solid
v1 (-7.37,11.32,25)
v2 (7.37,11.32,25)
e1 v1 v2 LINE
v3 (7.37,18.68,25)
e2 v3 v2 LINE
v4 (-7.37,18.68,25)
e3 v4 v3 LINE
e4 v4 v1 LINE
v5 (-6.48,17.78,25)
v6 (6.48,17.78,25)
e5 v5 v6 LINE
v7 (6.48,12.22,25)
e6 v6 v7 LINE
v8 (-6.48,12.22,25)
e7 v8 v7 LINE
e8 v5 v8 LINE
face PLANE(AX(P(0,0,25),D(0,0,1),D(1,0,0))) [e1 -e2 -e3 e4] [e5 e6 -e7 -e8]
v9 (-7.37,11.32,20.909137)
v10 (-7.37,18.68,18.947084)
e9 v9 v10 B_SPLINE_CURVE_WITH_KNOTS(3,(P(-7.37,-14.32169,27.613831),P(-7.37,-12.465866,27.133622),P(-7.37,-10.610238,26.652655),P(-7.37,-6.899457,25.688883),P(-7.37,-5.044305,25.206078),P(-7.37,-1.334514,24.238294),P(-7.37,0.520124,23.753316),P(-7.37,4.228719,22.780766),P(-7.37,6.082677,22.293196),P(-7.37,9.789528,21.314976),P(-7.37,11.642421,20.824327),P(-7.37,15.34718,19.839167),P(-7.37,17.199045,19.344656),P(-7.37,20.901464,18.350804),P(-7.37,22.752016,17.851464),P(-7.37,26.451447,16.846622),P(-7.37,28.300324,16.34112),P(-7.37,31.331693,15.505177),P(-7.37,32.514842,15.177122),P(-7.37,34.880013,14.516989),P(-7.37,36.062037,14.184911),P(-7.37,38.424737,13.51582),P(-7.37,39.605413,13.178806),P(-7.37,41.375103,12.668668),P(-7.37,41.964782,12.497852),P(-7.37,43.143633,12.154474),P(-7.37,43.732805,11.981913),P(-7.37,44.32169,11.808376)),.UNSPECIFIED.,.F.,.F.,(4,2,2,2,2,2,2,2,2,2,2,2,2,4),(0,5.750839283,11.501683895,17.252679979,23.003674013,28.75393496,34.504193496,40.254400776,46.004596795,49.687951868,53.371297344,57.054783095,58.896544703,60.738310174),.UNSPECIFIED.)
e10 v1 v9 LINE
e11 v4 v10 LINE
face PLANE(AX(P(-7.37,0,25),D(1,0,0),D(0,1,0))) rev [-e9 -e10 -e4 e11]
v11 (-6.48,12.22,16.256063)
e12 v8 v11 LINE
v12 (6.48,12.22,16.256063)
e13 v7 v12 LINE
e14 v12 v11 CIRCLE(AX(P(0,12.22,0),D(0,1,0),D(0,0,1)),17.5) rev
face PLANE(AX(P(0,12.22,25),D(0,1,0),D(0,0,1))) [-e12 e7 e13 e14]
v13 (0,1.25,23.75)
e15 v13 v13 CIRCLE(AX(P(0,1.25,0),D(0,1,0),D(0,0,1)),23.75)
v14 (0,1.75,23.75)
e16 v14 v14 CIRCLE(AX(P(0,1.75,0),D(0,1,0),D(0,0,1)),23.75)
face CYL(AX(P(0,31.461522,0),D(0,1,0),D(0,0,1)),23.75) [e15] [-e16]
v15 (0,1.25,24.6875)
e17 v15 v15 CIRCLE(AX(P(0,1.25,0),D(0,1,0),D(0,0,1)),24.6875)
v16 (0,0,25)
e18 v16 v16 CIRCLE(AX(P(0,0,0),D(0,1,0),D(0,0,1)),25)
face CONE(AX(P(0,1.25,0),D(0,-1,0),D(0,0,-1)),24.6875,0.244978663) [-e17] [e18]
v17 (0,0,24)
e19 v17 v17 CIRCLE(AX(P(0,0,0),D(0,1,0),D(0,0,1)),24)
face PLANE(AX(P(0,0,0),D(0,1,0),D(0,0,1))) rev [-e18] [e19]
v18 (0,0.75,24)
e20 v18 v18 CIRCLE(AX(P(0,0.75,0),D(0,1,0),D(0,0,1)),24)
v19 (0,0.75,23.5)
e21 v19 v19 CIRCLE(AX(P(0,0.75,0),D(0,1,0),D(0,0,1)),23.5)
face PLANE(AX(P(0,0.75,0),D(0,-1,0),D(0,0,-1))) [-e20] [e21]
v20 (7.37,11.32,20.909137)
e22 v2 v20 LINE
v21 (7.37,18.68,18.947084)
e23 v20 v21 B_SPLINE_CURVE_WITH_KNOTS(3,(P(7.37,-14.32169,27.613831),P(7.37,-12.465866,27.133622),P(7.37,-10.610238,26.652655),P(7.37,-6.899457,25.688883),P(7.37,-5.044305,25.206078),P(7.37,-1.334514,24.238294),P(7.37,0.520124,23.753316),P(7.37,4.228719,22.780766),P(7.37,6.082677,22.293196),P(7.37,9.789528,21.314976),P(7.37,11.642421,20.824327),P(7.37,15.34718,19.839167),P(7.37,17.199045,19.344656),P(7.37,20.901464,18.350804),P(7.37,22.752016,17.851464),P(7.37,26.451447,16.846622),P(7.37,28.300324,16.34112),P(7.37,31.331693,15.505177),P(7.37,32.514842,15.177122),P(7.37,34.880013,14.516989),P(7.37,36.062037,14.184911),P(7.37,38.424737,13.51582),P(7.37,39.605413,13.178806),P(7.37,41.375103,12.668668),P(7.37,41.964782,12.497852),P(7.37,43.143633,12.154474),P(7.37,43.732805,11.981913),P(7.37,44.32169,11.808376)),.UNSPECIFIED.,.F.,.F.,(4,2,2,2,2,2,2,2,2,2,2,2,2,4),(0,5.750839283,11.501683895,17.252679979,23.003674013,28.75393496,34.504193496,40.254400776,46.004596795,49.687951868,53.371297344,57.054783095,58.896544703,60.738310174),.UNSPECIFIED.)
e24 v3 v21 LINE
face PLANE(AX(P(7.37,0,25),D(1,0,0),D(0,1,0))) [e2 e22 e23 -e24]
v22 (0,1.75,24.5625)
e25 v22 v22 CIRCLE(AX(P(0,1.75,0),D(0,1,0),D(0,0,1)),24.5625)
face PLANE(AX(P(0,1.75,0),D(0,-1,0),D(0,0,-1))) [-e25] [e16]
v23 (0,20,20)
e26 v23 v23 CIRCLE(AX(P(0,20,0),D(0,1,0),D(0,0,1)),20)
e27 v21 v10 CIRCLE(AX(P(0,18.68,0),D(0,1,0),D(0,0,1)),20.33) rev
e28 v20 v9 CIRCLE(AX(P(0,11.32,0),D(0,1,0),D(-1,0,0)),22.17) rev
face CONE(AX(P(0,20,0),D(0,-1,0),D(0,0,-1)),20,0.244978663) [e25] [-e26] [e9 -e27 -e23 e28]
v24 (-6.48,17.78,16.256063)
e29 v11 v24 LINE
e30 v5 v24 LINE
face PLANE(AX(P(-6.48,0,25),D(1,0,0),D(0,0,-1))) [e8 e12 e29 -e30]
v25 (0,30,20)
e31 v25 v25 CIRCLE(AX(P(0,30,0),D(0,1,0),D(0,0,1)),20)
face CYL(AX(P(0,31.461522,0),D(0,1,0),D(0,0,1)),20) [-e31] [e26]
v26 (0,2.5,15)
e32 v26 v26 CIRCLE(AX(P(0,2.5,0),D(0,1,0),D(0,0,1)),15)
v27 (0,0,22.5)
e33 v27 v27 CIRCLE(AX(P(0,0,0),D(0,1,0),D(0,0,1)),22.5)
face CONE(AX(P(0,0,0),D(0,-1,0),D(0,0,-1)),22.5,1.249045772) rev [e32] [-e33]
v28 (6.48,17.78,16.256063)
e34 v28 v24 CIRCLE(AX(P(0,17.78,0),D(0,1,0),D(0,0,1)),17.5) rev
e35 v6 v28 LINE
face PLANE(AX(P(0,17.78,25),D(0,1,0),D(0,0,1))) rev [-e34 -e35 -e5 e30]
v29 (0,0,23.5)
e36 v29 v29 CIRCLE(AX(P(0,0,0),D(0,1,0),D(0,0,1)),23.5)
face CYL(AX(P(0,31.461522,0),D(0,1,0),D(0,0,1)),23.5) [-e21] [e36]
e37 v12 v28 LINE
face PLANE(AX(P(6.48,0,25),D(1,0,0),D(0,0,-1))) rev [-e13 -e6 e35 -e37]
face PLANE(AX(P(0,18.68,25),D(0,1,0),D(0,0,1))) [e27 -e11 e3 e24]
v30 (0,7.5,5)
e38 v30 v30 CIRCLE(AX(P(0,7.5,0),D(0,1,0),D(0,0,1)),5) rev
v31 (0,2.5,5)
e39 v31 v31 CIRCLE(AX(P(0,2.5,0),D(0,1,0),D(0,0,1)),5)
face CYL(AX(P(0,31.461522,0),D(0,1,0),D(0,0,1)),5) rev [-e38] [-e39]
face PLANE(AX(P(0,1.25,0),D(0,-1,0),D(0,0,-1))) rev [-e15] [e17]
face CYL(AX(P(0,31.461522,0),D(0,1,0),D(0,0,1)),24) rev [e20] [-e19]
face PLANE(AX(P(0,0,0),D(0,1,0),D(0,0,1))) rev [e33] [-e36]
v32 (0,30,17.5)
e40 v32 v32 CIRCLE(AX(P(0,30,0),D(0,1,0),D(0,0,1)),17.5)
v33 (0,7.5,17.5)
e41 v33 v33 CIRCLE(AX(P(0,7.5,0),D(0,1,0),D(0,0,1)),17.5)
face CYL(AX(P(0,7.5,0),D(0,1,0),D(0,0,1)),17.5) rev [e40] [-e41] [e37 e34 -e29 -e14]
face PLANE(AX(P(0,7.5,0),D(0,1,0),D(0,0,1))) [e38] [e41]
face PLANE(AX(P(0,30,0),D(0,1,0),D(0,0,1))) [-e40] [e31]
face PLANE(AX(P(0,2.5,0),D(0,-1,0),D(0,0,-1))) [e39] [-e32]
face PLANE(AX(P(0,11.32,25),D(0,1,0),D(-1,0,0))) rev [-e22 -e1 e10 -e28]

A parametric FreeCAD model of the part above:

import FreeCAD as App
import Part
import Sketcher

V = App.Vector

doc = App.newDocument("Part")
params = doc.addObject("Spreadsheet::Sheet", "Params")
for row, (alias, value) in enumerate([
    ("sketch1_diameter", "50 mm"),
    ("pad1_length", "30 mm"),
    ("sketch2_width", "5 mm"),
    ("sketch2_width2", "10 mm"),
    ("sketch2_height", "30 mm"),
    ("sketch2_width3", "22.5 mm"),
    ("sketch2_width4", "0.5 mm"),
    ("groove_angle", "360 deg"),
    ("sketch3_width", "14.74 mm"),
    ("sketch3_width2", "12.96 mm"),
    ("sketch3_height", "7.36 mm"),
    ("sketch3_height2", "5.56 mm"),
    ("pad2_length", "25 mm"),
    ("sketch4_diameter", "35 mm"),
    ("pocket1_length", "22.5 mm"),
    ("sketch5_width", "12.96 mm"),
    ("sketch5_height", "5.56 mm"),
    ("pocket2_length", "46.5 mm"),
], start=1):
    params.set(f"A{row}", alias)
    params.set(f"B{row}", "=" + value)
    params.setAlias(f"B{row}", alias)

body = doc.addObject("PartDesign::Body", "Body")

# Sketch on XZ plane
sketch1 = body.newObject("Sketcher::SketchObject", "Sketch")
sketch1.AttachmentSupport = (doc.getObject("XZ_Plane"), [""])
sketch1.MapMode = "FlatFace"
sketch1.addGeometry(Part.Circle(V(0, 0, 0), V(0, 0, 1), 25), False)
sketch1.addConstraint([
    Sketcher.Constraint("Coincident", 0, 3, -1, 1),
    Sketcher.Constraint("Diameter", 0, 50.0),
])
sketch1.setExpression("Constraints[1]", "Params.sketch1_diameter")
pad1 = body.newObject("PartDesign::Pad", "Pad")
pad1.Profile = sketch1
pad1.setExpression("Length", "Params.pad1_length")
pad1.Reversed = True

# Sketch on XY plane
sketch2 = body.newObject("Sketcher::SketchObject", "Sketch001")
sketch2.AttachmentSupport = (doc.getObject("XY_Plane"), [""])
sketch2.MapMode = "FlatFace"
sketch2.addGeometry([
    Part.LineSegment(V(-24.5625, 1.75, 0), V(-20, 20, 0)),  # 0
    Part.LineSegment(V(-20, 20, 0), V(-20, 30, 0)),  # 1
    Part.LineSegment(V(-20, 30, 0), V(-25, 30, 0)),  # 2
    Part.LineSegment(V(-25, 30, 0), V(-25, 0, 0)),  # 3
    Part.LineSegment(V(-25, 0, 0), V(-24.6875, 1.25, 0)),  # 4
    Part.LineSegment(V(-24.6875, 1.25, 0), V(-23.75, 1.25, 0)),  # 5
    Part.LineSegment(V(-23.75, 1.25, 0), V(-23.75, 1.75, 0)),  # 6
    Part.LineSegment(V(-23.75, 1.75, 0), V(-24.5625, 1.75, 0)),  # 7
    Part.LineSegment(V(0, 0, 0), V(0, 20, 0)),  # 8
    Part.LineSegment(V(0, 20, 0), V(-5, 20, 0)),  # 9
    Part.LineSegment(V(-5, 20, 0), V(-5, 2.5, 0)),  # 10
    Part.LineSegment(V(-5, 2.5, 0), V(-15, 2.5, 0)),  # 11
    Part.LineSegment(V(-15, 2.5, 0), V(-22.5, 0, 0)),  # 12
    Part.LineSegment(V(-22.5, 0, 0), V(0, 0, 0)),  # 13
    Part.LineSegment(V(-24, 0.75, 0), V(-24, 0, 0)),  # 14
    Part.LineSegment(V(-24, 0, 0), V(-23.5, 0, 0)),  # 15
    Part.LineSegment(V(-23.5, 0, 0), V(-23.5, 0.75, 0)),  # 16
    Part.LineSegment(V(-23.5, 0.75, 0), V(-24, 0.75, 0)),  # 17
], False)
sketch2.addConstraint([
    Sketcher.Constraint("Coincident", 0, 2, 1, 1),
    Sketcher.Constraint("Coincident", 1, 2, 2, 1),
    Sketcher.Constraint("Coincident", 2, 2, 3, 1),
    Sketcher.Constraint("Coincident", 3, 2, 4, 1),
    Sketcher.Constraint("Coincident", 4, 2, 5, 1),
    Sketcher.Constraint("Coincident", 5, 2, 6, 1),
    Sketcher.Constraint("Coincident", 6, 2, 7, 1),
    Sketcher.Constraint("Coincident", 7, 2, 0, 1),
    Sketcher.Constraint("Coincident", 8, 2, 9, 1),
    Sketcher.Constraint("Coincident", 9, 2, 10, 1),
    Sketcher.Constraint("Coincident", 10, 2, 11, 1),
    Sketcher.Constraint("Coincident", 11, 2, 12, 1),
    Sketcher.Constraint("Coincident", 12, 2, 13, 1),
    Sketcher.Constraint("Coincident", 13, 2, 8, 1),
    Sketcher.Constraint("Coincident", 14, 2, 15, 1),
    Sketcher.Constraint("Coincident", 15, 2, 16, 1),
    Sketcher.Constraint("Coincident", 16, 2, 17, 1),
    Sketcher.Constraint("Coincident", 17, 2, 14, 1),
    Sketcher.Constraint("Vertical", 1),
    Sketcher.Constraint("Horizontal", 2),
    Sketcher.Constraint("Vertical", 3),
    Sketcher.Constraint("Horizontal", 5),
    Sketcher.Constraint("Vertical", 6),
    Sketcher.Constraint("Horizontal", 7),
    Sketcher.Constraint("Vertical", 8),
    Sketcher.Constraint("Horizontal", 9),
    Sketcher.Constraint("Vertical", 10),
    Sketcher.Constraint("Horizontal", 11),
    Sketcher.Constraint("Horizontal", 13),
    Sketcher.Constraint("Vertical", 14),
    Sketcher.Constraint("Horizontal", 15),
    Sketcher.Constraint("Vertical", 16),
    Sketcher.Constraint("Horizontal", 17),
    Sketcher.Constraint("Coincident", 13, 2, -1, 1),
    Sketcher.Constraint("PointOnObject", 3, 2, -1),
    Sketcher.Constraint("PointOnObject", 14, 2, -1),
    Sketcher.Constraint("Parallel", 0, 4),
    Sketcher.Constraint("Horizontal", 0, 2, 8, 2),
    Sketcher.Constraint("Equal", 2, 9),
    Sketcher.Constraint("Equal", 11, 1),
    Sketcher.Constraint("Equal", 17, 6),
    Sketcher.Constraint("DistanceX", 2, 2, 2, 1, 5.0),
    Sketcher.Constraint("DistanceX", 11, 2, 11, 1, 10.0),
    Sketcher.Constraint("DistanceY", 3, 2, 3, 1, 30.0),
    Sketcher.Constraint("DistanceX", 13, 1, 13, 2, 22.5),
    Sketcher.Constraint("DistanceX", 15, 1, 15, 2, 0.5),
    Sketcher.Constraint("DistanceY", 10, 2, 10, 1, 17.5),
    Sketcher.Constraint("DistanceX", 0, 2, -1, 1, 20.0),
    Sketcher.Constraint("DistanceX", 14, 2, -1, 1, 24.0),
    Sketcher.Constraint("DistanceY", 16, 2, 6, 2, 1.0),
    Sketcher.Constraint("DistanceY", 14, 2, 14, 1, 0.75),
    Sketcher.Constraint("DistanceX", 5, 2, -1, 1, 23.75),
    Sketcher.Constraint("DistanceX", 5, 1, 5, 2, 0.9375),
])
sketch2.setExpression("Constraints[41]", "Params.sketch2_width")
sketch2.setExpression("Constraints[42]", "Params.sketch2_width2")
sketch2.setExpression("Constraints[43]", "Params.sketch2_height")
sketch2.setExpression("Constraints[44]", "Params.sketch2_width3")
sketch2.setExpression("Constraints[45]", "Params.sketch2_width4")
groove = body.newObject("PartDesign::Groove", "Groove")
groove.Profile = sketch2
groove.ReferenceAxis = (sketch2, ["V_Axis"])
groove.setExpression("Angle", "Params.groove_angle")

# Sketch on XY plane
sketch3 = body.newObject("Sketcher::SketchObject", "Sketch002")
sketch3.AttachmentSupport = (doc.getObject("XY_Plane"), [""])
sketch3.MapMode = "FlatFace"
sketch3.addGeometry([
    Part.LineSegment(V(-7.37, 18.68, 0), V(-7.37, 11.32, 0)),  # 0
    Part.LineSegment(V(-7.37, 11.32, 0), V(7.37, 11.32, 0)),  # 1
    Part.LineSegment(V(7.37, 11.32, 0), V(7.37, 18.68, 0)),  # 2
    Part.LineSegment(V(7.37, 18.68, 0), V(-7.37, 18.68, 0)),  # 3
    Part.LineSegment(V(6.48, 12.22, 0), V(-6.48, 12.22, 0)),  # 4
    Part.LineSegment(V(-6.48, 12.22, 0), V(-6.48, 17.78, 0)),  # 5
    Part.LineSegment(V(-6.48, 17.78, 0), V(6.48, 17.78, 0)),  # 6
    Part.LineSegment(V(6.48, 17.78, 0), V(6.48, 12.22, 0)),  # 7
], False)
sketch3.addConstraint([
    Sketcher.Constraint("Coincident", 0, 2, 1, 1),
    Sketcher.Constraint("Coincident", 1, 2, 2, 1),
    Sketcher.Constraint("Coincident", 2, 2, 3, 1),
    Sketcher.Constraint("Coincident", 3, 2, 0, 1),
    Sketcher.Constraint("Coincident", 4, 2, 5, 1),
    Sketcher.Constraint("Coincident", 5, 2, 6, 1),
    Sketcher.Constraint("Coincident", 6, 2, 7, 1),
    Sketcher.Constraint("Coincident", 7, 2, 4, 1),
    Sketcher.Constraint("Vertical", 0),
    Sketcher.Constraint("Horizontal", 1),
    Sketcher.Constraint("Vertical", 2),
    Sketcher.Constraint("Horizontal", 3),
    Sketcher.Constraint("Horizontal", 4),
    Sketcher.Constraint("Vertical", 5),
    Sketcher.Constraint("Horizontal", 6),
    Sketcher.Constraint("Vertical", 7),
    Sketcher.Constraint("DistanceX", 1, 1, 1, 2, 14.74),
    Sketcher.Constraint("DistanceX", 4, 2, 4, 1, 12.96),
    Sketcher.Constraint("DistanceY", 0, 2, 0, 1, 7.36),
    Sketcher.Constraint("DistanceY", 5, 1, 5, 2, 5.56),
    Sketcher.Constraint("DistanceY", 0, 2, 4, 2, 0.9),
    Sketcher.Constraint("DistanceX", 0, 2, -1, 1, 7.37),
    Sketcher.Constraint("DistanceY", -1, 1, 0, 2, 11.32),
    Sketcher.Constraint("DistanceX", 4, 2, -1, 1, 6.48),
])
sketch3.setExpression("Constraints[16]", "Params.sketch3_width")
sketch3.setExpression("Constraints[17]", "Params.sketch3_width2")
sketch3.setExpression("Constraints[18]", "Params.sketch3_height")
sketch3.setExpression("Constraints[19]", "Params.sketch3_height2")
pad2 = body.newObject("PartDesign::Pad", "Pad001")
pad2.Profile = sketch3
pad2.setExpression("Length", "Params.pad2_length")

# Sketch on XZ plane
sketch4 = body.newObject("Sketcher::SketchObject", "Sketch003")
sketch4.AttachmentSupport = (doc.getObject("XZ_Plane"), [""])
sketch4.MapMode = "FlatFace"
sketch4.AttachmentOffset = App.Placement(V(0, 0, -30), App.Rotation())
sketch4.addGeometry(Part.Circle(V(0, 0, 0), V(0, 0, 1), 17.5), False)
sketch4.addConstraint([
    Sketcher.Constraint("Coincident", 0, 3, -1, 1),
    Sketcher.Constraint("Diameter", 0, 35.0),
])
sketch4.setExpression("Constraints[1]", "Params.sketch4_diameter")
pocket1 = body.newObject("PartDesign::Pocket", "Pocket")
pocket1.Profile = sketch4
pocket1.setExpression("Length", "Params.pocket1_length")
pocket1.Reversed = True

# Sketch on XY plane
sketch5 = body.newObject("Sketcher::SketchObject", "Sketch004")
sketch5.AttachmentSupport = (doc.getObject("XY_Plane"), [""])
sketch5.MapMode = "FlatFace"
sketch5.addGeometry([
    Part.LineSegment(V(-6.48, 17.78, 0), V(-6.48, 12.22, 0)),
    Part.LineSegment(V(-6.48, 12.22, 0), V(6.48, 12.22, 0)),
    Part.LineSegment(V(6.48, 12.22, 0), V(6.48, 17.78, 0)),
    Part.LineSegment(V(6.48, 17.78, 0), V(-6.48, 17.78, 0)),
], False)
sketch5.addConstraint([
    Sketcher.Constraint("Coincident", 0, 2, 1, 1),
    Sketcher.Constraint("Coincident", 1, 2, 2, 1),
    Sketcher.Constraint("Coincident", 2, 2, 3, 1),
    Sketcher.Constraint("Coincident", 3, 2, 0, 1),
    Sketcher.Constraint("Vertical", 0),
    Sketcher.Constraint("Horizontal", 1),
    Sketcher.Constraint("Vertical", 2),
    Sketcher.Constraint("Horizontal", 3),
    Sketcher.Constraint("DistanceX", 1, 1, 1, 2, 12.96),
    Sketcher.Constraint("DistanceY", 0, 2, 0, 1, 5.56),
    Sketcher.Constraint("DistanceX", 0, 2, -1, 1, 6.48),
    Sketcher.Constraint("DistanceY", -1, 1, 0, 2, 12.22),
])
sketch5.setExpression("Constraints[8]", "Params.sketch5_width")
sketch5.setExpression("Constraints[9]", "Params.sketch5_height")
pocket2 = body.newObject("PartDesign::Pocket", "Pocket001")
pocket2.Profile = sketch5
pocket2.setExpression("Length", "Params.pocket2_length")
pocket2.Reversed = True

doc.recompute()
